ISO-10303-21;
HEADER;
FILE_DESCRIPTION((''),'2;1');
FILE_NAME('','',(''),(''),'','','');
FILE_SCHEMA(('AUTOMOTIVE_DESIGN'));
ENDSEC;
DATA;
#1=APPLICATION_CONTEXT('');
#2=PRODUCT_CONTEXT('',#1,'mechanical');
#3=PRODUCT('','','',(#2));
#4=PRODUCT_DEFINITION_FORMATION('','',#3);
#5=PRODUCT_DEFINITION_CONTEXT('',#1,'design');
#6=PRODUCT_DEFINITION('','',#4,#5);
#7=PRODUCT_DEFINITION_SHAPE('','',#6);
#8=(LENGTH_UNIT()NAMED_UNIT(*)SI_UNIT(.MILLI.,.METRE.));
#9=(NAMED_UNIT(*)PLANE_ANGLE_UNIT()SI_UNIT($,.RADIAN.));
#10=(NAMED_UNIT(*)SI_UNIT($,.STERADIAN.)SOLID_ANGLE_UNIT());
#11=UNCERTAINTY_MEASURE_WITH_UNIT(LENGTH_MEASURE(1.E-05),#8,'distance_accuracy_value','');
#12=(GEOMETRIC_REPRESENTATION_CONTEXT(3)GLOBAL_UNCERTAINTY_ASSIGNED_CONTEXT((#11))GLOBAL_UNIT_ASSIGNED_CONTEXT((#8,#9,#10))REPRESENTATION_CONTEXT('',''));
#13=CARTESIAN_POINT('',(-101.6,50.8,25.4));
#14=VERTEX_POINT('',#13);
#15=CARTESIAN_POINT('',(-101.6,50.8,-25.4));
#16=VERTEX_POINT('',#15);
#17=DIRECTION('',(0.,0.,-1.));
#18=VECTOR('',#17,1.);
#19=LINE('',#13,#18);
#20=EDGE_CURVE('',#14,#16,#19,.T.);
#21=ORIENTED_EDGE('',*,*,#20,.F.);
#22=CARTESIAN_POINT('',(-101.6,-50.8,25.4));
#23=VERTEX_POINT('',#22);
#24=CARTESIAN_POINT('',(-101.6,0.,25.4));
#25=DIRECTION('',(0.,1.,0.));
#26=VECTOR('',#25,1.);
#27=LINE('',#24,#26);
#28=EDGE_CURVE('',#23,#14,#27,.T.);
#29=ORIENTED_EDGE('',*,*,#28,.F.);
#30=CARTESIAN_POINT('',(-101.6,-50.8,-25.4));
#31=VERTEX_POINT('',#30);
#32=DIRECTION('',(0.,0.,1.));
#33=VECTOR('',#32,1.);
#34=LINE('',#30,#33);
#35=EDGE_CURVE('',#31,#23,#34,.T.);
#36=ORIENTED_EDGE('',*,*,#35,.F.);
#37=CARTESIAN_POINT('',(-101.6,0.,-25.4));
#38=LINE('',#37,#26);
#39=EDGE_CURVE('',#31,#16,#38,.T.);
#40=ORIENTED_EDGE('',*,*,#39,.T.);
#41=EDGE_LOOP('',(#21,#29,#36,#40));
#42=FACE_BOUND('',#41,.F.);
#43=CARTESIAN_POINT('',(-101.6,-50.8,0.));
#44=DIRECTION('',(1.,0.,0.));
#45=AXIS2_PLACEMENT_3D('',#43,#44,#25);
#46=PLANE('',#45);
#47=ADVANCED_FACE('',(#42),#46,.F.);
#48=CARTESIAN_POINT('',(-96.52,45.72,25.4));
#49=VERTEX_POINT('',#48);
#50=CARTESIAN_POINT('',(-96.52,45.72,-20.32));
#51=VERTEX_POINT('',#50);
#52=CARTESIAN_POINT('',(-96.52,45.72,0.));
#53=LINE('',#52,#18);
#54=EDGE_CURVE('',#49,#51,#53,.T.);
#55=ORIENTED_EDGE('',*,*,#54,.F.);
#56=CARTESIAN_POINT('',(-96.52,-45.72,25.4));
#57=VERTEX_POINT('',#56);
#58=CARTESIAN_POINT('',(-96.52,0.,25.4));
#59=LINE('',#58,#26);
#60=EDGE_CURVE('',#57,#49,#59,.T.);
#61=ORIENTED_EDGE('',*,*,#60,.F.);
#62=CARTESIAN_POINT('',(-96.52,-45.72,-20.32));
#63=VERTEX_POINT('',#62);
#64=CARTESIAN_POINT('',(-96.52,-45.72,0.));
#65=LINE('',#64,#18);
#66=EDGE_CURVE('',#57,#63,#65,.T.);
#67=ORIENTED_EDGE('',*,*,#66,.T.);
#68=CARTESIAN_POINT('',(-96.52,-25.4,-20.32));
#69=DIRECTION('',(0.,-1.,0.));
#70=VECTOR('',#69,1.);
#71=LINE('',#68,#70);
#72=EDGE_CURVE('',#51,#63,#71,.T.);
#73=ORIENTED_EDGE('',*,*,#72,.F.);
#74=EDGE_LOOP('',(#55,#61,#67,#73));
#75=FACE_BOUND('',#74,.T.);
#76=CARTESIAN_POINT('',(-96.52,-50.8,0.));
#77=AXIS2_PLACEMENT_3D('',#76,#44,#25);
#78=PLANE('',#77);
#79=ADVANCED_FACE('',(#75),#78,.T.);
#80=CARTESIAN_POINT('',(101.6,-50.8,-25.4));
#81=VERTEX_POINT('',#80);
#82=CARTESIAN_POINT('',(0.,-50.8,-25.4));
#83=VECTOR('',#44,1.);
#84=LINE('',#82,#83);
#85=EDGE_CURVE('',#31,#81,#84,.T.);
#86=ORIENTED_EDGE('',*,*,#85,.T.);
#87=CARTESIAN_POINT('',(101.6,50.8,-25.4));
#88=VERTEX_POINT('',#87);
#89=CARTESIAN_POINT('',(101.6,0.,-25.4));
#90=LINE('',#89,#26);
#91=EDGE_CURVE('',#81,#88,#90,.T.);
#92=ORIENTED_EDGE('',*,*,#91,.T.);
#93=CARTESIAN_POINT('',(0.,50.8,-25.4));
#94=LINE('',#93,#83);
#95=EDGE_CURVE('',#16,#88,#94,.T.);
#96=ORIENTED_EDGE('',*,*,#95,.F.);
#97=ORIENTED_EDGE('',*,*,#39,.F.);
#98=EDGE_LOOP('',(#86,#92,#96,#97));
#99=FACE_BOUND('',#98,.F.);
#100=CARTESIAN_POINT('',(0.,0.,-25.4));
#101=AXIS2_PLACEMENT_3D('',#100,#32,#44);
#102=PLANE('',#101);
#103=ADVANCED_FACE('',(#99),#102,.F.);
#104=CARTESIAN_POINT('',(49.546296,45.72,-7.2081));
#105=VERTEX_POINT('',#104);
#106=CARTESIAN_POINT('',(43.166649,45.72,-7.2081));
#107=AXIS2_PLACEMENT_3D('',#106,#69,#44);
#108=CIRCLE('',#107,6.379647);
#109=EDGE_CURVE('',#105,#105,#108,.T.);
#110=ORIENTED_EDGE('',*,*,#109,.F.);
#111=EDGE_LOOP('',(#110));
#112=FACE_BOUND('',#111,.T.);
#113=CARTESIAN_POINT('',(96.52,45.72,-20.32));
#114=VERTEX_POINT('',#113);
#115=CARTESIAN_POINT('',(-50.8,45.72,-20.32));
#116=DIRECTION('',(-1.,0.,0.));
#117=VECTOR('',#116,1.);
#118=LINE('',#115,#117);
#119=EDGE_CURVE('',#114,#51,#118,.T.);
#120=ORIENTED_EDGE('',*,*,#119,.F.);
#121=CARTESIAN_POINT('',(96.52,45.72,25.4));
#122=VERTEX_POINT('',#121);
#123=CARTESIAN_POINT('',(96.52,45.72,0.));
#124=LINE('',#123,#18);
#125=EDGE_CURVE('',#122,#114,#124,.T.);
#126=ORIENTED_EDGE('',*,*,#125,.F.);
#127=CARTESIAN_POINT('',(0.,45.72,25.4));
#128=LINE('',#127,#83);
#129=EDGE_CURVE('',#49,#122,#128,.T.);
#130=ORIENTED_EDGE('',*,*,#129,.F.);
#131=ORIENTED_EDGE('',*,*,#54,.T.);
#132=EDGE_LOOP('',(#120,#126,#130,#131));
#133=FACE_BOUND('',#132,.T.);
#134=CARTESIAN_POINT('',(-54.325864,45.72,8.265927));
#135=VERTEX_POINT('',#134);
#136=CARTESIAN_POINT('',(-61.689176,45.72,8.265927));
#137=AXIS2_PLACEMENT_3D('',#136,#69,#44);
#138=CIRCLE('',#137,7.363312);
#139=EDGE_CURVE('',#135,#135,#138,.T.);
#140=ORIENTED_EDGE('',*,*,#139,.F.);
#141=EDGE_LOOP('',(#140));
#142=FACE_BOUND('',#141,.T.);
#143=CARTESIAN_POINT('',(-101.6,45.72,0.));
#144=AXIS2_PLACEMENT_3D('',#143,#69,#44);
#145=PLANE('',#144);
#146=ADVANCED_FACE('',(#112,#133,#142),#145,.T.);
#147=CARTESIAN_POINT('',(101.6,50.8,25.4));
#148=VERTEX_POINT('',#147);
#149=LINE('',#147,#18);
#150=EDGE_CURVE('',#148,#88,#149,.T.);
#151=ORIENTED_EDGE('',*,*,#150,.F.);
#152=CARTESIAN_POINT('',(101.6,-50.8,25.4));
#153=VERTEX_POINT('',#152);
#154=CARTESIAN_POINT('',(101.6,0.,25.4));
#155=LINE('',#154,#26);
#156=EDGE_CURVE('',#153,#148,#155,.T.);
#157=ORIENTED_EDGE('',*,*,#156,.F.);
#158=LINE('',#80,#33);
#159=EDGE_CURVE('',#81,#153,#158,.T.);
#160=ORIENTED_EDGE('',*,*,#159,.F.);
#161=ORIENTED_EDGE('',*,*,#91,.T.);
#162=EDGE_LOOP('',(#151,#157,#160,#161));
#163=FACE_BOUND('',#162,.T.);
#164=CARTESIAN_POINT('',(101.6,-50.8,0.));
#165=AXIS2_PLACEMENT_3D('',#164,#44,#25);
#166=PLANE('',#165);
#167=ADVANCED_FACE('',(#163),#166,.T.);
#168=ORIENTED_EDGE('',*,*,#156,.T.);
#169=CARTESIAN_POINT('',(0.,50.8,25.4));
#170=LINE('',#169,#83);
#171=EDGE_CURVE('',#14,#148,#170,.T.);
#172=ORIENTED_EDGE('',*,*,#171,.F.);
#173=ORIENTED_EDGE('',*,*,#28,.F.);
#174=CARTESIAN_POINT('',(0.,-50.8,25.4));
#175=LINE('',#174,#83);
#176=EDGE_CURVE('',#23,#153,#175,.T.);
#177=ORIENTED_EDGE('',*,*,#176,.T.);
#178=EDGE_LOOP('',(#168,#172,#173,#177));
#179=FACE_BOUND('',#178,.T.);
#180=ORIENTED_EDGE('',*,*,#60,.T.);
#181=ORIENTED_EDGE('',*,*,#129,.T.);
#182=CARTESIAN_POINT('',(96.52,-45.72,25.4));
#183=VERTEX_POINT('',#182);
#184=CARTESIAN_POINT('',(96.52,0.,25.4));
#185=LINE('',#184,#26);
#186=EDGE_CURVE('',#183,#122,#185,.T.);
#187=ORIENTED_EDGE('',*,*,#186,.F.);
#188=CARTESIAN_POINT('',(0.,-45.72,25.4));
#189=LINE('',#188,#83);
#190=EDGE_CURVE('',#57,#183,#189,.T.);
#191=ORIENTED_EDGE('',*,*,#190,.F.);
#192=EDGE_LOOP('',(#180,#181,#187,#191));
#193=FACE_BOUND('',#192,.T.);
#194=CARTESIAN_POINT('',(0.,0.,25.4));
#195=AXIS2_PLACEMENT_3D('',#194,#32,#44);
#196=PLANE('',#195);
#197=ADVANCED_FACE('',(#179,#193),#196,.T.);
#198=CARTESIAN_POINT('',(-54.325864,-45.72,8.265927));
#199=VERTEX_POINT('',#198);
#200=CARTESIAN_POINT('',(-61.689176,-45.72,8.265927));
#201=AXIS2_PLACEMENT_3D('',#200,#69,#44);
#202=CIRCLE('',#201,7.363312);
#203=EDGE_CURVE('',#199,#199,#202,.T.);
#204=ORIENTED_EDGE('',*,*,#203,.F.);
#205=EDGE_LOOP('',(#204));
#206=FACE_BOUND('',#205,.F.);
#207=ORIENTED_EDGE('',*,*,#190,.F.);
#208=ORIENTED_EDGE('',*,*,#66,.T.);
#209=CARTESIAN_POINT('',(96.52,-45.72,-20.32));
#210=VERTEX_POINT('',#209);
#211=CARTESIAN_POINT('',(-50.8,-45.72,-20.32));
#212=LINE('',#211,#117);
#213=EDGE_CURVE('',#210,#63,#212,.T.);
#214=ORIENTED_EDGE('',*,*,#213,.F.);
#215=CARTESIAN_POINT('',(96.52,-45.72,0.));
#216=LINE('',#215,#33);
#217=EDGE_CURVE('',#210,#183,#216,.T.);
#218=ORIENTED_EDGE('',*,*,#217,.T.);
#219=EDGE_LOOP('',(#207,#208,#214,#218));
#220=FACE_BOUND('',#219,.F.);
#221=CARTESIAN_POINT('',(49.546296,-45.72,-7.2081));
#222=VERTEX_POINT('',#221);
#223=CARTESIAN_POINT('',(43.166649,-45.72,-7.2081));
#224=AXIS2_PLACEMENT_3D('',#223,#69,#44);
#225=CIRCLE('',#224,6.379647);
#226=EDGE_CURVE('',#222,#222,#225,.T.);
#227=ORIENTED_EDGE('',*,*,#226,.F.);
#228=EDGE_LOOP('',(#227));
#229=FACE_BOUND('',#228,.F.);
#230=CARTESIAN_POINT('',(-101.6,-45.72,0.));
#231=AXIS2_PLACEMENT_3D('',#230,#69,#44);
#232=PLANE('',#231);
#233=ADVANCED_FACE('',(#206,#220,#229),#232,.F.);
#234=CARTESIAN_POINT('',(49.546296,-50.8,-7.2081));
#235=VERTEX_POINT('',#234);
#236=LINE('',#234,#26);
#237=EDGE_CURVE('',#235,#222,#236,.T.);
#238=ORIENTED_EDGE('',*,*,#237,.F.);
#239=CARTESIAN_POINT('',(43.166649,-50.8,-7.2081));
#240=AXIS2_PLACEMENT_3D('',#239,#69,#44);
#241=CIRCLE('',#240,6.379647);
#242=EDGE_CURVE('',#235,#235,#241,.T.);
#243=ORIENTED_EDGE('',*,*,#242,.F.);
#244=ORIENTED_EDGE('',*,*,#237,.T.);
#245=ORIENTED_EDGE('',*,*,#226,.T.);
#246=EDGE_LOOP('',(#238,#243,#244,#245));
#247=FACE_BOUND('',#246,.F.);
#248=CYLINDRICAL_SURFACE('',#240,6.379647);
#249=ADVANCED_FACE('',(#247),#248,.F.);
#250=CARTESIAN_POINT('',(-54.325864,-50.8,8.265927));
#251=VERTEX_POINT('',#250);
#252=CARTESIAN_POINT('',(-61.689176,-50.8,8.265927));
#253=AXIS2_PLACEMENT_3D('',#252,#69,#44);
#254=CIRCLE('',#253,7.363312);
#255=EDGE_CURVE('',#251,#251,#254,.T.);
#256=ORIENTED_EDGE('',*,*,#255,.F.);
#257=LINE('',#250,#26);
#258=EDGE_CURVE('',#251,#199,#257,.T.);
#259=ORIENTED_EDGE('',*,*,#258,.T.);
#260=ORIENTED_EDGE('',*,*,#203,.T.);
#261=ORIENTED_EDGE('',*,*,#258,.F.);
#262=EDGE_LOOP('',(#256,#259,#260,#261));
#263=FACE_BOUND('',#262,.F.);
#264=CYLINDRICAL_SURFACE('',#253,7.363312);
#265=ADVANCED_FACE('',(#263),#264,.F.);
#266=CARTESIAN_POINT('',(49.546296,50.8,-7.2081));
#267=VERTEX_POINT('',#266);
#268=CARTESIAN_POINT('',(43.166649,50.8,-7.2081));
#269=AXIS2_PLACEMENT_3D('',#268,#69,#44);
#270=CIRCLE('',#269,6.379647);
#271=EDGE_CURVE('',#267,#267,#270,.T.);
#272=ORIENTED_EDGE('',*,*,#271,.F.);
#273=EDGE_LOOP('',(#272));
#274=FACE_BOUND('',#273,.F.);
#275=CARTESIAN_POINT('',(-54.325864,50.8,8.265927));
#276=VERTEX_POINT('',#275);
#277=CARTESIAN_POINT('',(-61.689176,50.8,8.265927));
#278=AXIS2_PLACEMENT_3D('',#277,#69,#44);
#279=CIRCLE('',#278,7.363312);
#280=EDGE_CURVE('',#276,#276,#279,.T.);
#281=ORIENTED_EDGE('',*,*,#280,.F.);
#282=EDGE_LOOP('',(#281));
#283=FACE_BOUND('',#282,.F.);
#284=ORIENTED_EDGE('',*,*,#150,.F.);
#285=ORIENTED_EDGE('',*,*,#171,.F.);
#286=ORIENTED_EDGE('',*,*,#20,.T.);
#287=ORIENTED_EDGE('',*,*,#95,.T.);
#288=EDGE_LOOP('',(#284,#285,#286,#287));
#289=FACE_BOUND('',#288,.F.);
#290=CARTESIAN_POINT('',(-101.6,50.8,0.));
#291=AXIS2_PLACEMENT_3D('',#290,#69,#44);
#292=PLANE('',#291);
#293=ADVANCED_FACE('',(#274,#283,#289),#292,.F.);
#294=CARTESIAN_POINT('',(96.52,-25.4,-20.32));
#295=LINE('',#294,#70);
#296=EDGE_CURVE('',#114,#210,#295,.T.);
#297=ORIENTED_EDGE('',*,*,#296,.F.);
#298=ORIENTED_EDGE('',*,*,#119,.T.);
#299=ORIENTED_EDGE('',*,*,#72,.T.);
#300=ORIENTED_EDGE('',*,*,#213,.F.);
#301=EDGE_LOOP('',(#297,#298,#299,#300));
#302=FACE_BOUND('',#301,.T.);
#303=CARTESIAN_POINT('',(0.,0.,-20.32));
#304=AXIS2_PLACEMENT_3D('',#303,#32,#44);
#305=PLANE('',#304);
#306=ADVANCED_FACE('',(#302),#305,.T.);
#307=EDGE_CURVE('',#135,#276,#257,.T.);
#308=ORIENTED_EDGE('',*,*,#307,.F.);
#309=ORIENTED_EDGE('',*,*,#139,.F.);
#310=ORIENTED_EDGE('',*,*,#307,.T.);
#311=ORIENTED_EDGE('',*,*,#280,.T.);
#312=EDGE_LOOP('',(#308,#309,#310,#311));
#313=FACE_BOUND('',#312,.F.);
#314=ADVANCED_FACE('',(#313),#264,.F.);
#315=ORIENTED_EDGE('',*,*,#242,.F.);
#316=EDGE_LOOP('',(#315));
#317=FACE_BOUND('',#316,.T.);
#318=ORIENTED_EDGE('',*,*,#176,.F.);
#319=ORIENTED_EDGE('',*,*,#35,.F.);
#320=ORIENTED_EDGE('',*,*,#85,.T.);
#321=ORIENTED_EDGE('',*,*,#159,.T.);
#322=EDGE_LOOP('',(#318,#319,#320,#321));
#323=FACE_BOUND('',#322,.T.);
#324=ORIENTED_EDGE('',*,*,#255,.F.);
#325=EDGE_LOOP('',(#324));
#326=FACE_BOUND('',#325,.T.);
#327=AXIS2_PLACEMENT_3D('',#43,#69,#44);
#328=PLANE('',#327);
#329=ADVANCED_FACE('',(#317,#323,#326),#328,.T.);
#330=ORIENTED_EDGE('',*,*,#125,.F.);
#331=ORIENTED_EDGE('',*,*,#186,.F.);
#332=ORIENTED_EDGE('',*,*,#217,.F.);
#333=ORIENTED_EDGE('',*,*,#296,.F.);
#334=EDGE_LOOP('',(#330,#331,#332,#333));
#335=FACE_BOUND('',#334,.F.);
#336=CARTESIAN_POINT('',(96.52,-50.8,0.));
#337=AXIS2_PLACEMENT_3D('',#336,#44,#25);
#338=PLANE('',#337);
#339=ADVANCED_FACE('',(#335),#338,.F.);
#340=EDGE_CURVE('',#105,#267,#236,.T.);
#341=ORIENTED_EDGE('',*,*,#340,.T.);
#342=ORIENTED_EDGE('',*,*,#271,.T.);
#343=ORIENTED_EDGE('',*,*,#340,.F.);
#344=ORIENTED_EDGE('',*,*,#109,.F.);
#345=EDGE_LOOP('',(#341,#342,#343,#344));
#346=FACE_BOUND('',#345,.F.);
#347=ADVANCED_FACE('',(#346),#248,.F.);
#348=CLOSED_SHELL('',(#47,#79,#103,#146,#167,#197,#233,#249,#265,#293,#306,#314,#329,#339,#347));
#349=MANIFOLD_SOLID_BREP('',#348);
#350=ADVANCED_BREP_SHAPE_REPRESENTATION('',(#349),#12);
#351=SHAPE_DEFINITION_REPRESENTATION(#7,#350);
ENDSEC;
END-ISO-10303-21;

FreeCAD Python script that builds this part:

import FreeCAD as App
import Part
import Sketcher

V = App.Vector
Q = App.Units.Quantity


def faces_at(feature, points):
    """Names of the faces that lie closest to the given points."""
    faces = feature.Shape.Faces
    near = lambda p: min(range(len(faces)), key=lambda i: faces[i].distToShape(Part.Vertex(*p))[0])
    return sorted({f"Face{near(p) + 1}" for p in points})


def add_polygon(sketch, points):
    """Adds a closed chain of lines whose ends are joined by coincident constraints."""
    first, n = sketch.GeometryCount, len(points)
    for a, b in zip(points, points[1:] + points[:1]):
        sketch.addGeometry(Part.LineSegment(App.Vector(*a, 0), App.Vector(*b, 0)), False)
    for i in range(n):
        sketch.addConstraint(Sketcher.Constraint("Coincident", first + i, 2, first + (i + 1) % n, 1))

doc = App.newDocument("Part")
body = doc.addObject("PartDesign::Body", "Body")

# Sketch on XY plane
sketch1 = body.newObject("Sketcher::SketchObject", "Sketch")
sketch1.AttachmentSupport = (doc.getObject("XY_Plane"), [""])
sketch1.MapMode = "FlatFace"
add_polygon(sketch1, [(-102, 51), (-102, -51), (102, -51), (102, 51)])  # lines 0-3
sketch1.addConstraint([
    Sketcher.Constraint("Vertical", 0),
    Sketcher.Constraint("Horizontal", 1),
    Sketcher.Constraint("Vertical", 2),
    Sketcher.Constraint("Horizontal", 3),
    Sketcher.Constraint("Symmetric", 0, 2, 2, 2, -1, 1),
    Sketcher.Constraint("DistanceX", 1, 1, 1, 2, Q("8 in")),
    Sketcher.Constraint("DistanceY", 0, 2, 0, 1, Q("4 in")),
])
pad1 = body.newObject("PartDesign::Pad", "Pad")
pad1.Profile = sketch1
pad1.Type = "TwoLengths"
pad1.Length = Q("1 in")
pad1.Length2 = Q("1 in")
doc.recompute()

thickness = body.newObject("PartDesign::Thickness", "Thickness")
thickness.Base = (pad1, faces_at(pad1, [(0, 0, 25.4)]))
thickness.Value = Q("0.2 in")
thickness.Reversed = True
thickness.Join = "Arc"

# Sketch on XZ plane
sketch2 = body.newObject("Sketcher::SketchObject", "Sketch001")
sketch2.AttachmentSupport = (doc.getObject("XZ_Plane"), [""])
sketch2.MapMode = "FlatFace"
sketch2.AttachmentOffset = App.Placement(V(0, 0, 2 * 25.4), App.Rotation())
sketch2.addGeometry([
    Part.Circle(V(-62, 8, 0), V(0, 0, 1), 7),
    Part.Circle(V(43, -7, 0), V(0, 0, 1), 6),
], False)
sketch2.addConstraint([
    Sketcher.Constraint("Diameter", 0, Q("14.726624 mm")),
    Sketcher.Constraint("Diameter", 1, Q("12.759294 mm")),
    Sketcher.Constraint("DistanceY", 1, 3, -1, 1, Q("7.2081 mm")),
    Sketcher.Constraint("DistanceX", -1, 1, 1, 3, Q("43.166649 mm")),
    Sketcher.Constraint("DistanceX", 0, 3, -1, 1, Q("61.689176 mm")),
    Sketcher.Constraint("DistanceY", -1, 1, 0, 3, Q("8.265927 mm")),
])
pocket1 = body.newObject("PartDesign::Pocket", "Pocket")
pocket1.Profile = sketch2
pocket1.Type = "ThroughAll"

doc.recompute()
